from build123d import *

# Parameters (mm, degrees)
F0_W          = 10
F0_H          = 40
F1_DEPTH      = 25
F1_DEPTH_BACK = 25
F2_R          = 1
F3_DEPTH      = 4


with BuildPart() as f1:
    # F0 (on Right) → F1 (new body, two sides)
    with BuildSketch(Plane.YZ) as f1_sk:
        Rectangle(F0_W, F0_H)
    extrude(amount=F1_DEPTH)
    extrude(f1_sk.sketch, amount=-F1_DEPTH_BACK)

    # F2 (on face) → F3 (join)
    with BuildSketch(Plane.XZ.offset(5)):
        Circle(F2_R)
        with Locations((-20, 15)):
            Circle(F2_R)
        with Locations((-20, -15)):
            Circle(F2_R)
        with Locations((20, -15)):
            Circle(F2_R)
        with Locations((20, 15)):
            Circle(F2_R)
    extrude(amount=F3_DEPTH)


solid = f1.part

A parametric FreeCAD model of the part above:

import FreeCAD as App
import Part
import Sketcher

doc = App.newDocument("Part")
params = doc.addObject("Spreadsheet::Sheet", "Params")
for row, (alias, value) in enumerate([
    ("sketch1_width", "10 mm"),
    ("sketch1_height", "40 mm"),
    ("pad1_length", "25 mm"),
    ("pad1_length2", "25 mm"),
    ("sketch2_diameter", "2 mm"),
    ("pad2_length", "4 mm"),
], start=1):
    params.set(f"A{row}", alias)
    params.set(f"B{row}", "=" + value)
    params.setAlias(f"B{row}", alias)

body = doc.addObject("PartDesign::Body", "Body")

sketch1 = body.newObject("Sketcher::SketchObject", "Sketch")
sketch1.AttachmentSupport = (doc.getObject("YZ_Plane"), [""])
sketch1.MapMode = "FlatFace"
sketch1.addGeometry([
    Part.LineSegment(App.Vector(-5, 20, 0), App.Vector(-5, -20, 0)),
    Part.LineSegment(App.Vector(-5, -20, 0), App.Vector(5, -20, 0)),
    Part.LineSegment(App.Vector(5, -20, 0), App.Vector(5, 20, 0)),
    Part.LineSegment(App.Vector(5, 20, 0), App.Vector(-5, 20, 0)),
], False)
sketch1.addConstraint([
    Sketcher.Constraint("Coincident", 0, 2, 1, 1),
    Sketcher.Constraint("Coincident", 1, 2, 2, 1),
    Sketcher.Constraint("Coincident", 2, 2, 3, 1),
    Sketcher.Constraint("Coincident", 3, 2, 0, 1),
    Sketcher.Constraint("Vertical", 0),
    Sketcher.Constraint("Horizontal", 1),
    Sketcher.Constraint("Vertical", 2),
    Sketcher.Constraint("Horizontal", 3),
    Sketcher.Constraint("Symmetric", 0, 2, 2, 2, -1, 1),
    Sketcher.Constraint("DistanceX", 1, 1, 1, 2, 10.0),
    Sketcher.Constraint("DistanceY", 0, 2, 0, 1, 40.0),
])
sketch1.setExpression("Constraints[9]", "Params.sketch1_width")
sketch1.setExpression("Constraints[10]", "Params.sketch1_height")
pad1 = body.newObject("PartDesign::Pad", "Pad")
pad1.Profile = sketch1
pad1.Type = "TwoLengths"
pad1.setExpression("Length", "Params.pad1_length")
pad1.setExpression("Length2", "Params.pad1_length2")

sketch2 = body.newObject("Sketcher::SketchObject", "Sketch001")
sketch2.AttachmentSupport = (doc.getObject("XZ_Plane"), [""])
sketch2.MapMode = "FlatFace"
sketch2.AttachmentOffset = App.Placement(App.Vector(0, 0, 5), App.Rotation())
sketch2.addGeometry([
    Part.Circle(App.Vector(0, 0, 0), App.Vector(0, 0, 1), 1),
    Part.Circle(App.Vector(-20, 15, 0), App.Vector(0, 0, 1), 1),
    Part.Circle(App.Vector(-20, -15, 0), App.Vector(0, 0, 1), 1),
    Part.Circle(App.Vector(20, -15, 0), App.Vector(0, 0, 1), 1),
    Part.Circle(App.Vector(20, 15, 0), App.Vector(0, 0, 1), 1),
], False)
sketch2.addConstraint([
    Sketcher.Constraint("Coincident", 0, 3, -1, 1),
    Sketcher.Constraint("Equal", 0, 1),
    Sketcher.Constraint("Equal", 1, 2),
    Sketcher.Constraint("Equal", 2, 3),
    Sketcher.Constraint("Equal", 3, 4),
    Sketcher.Constraint("Symmetric", 1, 3, 3, 3, -1, 1),
    Sketcher.Constraint("Symmetric", 2, 3, 4, 3, -1, 1),
    Sketcher.Constraint("Symmetric", 2, 3, 3, 3, -2),
    Sketcher.Constraint("Diameter", 0, 2.0),
    Sketcher.Constraint("DistanceX", 1, 3, -1, 1, 20.0),
    Sketcher.Constraint("DistanceY", -1, 1, 1, 3, 15.0),
])
sketch2.setExpression("Constraints[8]", "Params.sketch2_diameter")
pad2 = body.newObject("PartDesign::Pad", "Pad001")
pad2.Profile = sketch2
pad2.setExpression("Length", "Params.pad2_length")

doc.recompute()
